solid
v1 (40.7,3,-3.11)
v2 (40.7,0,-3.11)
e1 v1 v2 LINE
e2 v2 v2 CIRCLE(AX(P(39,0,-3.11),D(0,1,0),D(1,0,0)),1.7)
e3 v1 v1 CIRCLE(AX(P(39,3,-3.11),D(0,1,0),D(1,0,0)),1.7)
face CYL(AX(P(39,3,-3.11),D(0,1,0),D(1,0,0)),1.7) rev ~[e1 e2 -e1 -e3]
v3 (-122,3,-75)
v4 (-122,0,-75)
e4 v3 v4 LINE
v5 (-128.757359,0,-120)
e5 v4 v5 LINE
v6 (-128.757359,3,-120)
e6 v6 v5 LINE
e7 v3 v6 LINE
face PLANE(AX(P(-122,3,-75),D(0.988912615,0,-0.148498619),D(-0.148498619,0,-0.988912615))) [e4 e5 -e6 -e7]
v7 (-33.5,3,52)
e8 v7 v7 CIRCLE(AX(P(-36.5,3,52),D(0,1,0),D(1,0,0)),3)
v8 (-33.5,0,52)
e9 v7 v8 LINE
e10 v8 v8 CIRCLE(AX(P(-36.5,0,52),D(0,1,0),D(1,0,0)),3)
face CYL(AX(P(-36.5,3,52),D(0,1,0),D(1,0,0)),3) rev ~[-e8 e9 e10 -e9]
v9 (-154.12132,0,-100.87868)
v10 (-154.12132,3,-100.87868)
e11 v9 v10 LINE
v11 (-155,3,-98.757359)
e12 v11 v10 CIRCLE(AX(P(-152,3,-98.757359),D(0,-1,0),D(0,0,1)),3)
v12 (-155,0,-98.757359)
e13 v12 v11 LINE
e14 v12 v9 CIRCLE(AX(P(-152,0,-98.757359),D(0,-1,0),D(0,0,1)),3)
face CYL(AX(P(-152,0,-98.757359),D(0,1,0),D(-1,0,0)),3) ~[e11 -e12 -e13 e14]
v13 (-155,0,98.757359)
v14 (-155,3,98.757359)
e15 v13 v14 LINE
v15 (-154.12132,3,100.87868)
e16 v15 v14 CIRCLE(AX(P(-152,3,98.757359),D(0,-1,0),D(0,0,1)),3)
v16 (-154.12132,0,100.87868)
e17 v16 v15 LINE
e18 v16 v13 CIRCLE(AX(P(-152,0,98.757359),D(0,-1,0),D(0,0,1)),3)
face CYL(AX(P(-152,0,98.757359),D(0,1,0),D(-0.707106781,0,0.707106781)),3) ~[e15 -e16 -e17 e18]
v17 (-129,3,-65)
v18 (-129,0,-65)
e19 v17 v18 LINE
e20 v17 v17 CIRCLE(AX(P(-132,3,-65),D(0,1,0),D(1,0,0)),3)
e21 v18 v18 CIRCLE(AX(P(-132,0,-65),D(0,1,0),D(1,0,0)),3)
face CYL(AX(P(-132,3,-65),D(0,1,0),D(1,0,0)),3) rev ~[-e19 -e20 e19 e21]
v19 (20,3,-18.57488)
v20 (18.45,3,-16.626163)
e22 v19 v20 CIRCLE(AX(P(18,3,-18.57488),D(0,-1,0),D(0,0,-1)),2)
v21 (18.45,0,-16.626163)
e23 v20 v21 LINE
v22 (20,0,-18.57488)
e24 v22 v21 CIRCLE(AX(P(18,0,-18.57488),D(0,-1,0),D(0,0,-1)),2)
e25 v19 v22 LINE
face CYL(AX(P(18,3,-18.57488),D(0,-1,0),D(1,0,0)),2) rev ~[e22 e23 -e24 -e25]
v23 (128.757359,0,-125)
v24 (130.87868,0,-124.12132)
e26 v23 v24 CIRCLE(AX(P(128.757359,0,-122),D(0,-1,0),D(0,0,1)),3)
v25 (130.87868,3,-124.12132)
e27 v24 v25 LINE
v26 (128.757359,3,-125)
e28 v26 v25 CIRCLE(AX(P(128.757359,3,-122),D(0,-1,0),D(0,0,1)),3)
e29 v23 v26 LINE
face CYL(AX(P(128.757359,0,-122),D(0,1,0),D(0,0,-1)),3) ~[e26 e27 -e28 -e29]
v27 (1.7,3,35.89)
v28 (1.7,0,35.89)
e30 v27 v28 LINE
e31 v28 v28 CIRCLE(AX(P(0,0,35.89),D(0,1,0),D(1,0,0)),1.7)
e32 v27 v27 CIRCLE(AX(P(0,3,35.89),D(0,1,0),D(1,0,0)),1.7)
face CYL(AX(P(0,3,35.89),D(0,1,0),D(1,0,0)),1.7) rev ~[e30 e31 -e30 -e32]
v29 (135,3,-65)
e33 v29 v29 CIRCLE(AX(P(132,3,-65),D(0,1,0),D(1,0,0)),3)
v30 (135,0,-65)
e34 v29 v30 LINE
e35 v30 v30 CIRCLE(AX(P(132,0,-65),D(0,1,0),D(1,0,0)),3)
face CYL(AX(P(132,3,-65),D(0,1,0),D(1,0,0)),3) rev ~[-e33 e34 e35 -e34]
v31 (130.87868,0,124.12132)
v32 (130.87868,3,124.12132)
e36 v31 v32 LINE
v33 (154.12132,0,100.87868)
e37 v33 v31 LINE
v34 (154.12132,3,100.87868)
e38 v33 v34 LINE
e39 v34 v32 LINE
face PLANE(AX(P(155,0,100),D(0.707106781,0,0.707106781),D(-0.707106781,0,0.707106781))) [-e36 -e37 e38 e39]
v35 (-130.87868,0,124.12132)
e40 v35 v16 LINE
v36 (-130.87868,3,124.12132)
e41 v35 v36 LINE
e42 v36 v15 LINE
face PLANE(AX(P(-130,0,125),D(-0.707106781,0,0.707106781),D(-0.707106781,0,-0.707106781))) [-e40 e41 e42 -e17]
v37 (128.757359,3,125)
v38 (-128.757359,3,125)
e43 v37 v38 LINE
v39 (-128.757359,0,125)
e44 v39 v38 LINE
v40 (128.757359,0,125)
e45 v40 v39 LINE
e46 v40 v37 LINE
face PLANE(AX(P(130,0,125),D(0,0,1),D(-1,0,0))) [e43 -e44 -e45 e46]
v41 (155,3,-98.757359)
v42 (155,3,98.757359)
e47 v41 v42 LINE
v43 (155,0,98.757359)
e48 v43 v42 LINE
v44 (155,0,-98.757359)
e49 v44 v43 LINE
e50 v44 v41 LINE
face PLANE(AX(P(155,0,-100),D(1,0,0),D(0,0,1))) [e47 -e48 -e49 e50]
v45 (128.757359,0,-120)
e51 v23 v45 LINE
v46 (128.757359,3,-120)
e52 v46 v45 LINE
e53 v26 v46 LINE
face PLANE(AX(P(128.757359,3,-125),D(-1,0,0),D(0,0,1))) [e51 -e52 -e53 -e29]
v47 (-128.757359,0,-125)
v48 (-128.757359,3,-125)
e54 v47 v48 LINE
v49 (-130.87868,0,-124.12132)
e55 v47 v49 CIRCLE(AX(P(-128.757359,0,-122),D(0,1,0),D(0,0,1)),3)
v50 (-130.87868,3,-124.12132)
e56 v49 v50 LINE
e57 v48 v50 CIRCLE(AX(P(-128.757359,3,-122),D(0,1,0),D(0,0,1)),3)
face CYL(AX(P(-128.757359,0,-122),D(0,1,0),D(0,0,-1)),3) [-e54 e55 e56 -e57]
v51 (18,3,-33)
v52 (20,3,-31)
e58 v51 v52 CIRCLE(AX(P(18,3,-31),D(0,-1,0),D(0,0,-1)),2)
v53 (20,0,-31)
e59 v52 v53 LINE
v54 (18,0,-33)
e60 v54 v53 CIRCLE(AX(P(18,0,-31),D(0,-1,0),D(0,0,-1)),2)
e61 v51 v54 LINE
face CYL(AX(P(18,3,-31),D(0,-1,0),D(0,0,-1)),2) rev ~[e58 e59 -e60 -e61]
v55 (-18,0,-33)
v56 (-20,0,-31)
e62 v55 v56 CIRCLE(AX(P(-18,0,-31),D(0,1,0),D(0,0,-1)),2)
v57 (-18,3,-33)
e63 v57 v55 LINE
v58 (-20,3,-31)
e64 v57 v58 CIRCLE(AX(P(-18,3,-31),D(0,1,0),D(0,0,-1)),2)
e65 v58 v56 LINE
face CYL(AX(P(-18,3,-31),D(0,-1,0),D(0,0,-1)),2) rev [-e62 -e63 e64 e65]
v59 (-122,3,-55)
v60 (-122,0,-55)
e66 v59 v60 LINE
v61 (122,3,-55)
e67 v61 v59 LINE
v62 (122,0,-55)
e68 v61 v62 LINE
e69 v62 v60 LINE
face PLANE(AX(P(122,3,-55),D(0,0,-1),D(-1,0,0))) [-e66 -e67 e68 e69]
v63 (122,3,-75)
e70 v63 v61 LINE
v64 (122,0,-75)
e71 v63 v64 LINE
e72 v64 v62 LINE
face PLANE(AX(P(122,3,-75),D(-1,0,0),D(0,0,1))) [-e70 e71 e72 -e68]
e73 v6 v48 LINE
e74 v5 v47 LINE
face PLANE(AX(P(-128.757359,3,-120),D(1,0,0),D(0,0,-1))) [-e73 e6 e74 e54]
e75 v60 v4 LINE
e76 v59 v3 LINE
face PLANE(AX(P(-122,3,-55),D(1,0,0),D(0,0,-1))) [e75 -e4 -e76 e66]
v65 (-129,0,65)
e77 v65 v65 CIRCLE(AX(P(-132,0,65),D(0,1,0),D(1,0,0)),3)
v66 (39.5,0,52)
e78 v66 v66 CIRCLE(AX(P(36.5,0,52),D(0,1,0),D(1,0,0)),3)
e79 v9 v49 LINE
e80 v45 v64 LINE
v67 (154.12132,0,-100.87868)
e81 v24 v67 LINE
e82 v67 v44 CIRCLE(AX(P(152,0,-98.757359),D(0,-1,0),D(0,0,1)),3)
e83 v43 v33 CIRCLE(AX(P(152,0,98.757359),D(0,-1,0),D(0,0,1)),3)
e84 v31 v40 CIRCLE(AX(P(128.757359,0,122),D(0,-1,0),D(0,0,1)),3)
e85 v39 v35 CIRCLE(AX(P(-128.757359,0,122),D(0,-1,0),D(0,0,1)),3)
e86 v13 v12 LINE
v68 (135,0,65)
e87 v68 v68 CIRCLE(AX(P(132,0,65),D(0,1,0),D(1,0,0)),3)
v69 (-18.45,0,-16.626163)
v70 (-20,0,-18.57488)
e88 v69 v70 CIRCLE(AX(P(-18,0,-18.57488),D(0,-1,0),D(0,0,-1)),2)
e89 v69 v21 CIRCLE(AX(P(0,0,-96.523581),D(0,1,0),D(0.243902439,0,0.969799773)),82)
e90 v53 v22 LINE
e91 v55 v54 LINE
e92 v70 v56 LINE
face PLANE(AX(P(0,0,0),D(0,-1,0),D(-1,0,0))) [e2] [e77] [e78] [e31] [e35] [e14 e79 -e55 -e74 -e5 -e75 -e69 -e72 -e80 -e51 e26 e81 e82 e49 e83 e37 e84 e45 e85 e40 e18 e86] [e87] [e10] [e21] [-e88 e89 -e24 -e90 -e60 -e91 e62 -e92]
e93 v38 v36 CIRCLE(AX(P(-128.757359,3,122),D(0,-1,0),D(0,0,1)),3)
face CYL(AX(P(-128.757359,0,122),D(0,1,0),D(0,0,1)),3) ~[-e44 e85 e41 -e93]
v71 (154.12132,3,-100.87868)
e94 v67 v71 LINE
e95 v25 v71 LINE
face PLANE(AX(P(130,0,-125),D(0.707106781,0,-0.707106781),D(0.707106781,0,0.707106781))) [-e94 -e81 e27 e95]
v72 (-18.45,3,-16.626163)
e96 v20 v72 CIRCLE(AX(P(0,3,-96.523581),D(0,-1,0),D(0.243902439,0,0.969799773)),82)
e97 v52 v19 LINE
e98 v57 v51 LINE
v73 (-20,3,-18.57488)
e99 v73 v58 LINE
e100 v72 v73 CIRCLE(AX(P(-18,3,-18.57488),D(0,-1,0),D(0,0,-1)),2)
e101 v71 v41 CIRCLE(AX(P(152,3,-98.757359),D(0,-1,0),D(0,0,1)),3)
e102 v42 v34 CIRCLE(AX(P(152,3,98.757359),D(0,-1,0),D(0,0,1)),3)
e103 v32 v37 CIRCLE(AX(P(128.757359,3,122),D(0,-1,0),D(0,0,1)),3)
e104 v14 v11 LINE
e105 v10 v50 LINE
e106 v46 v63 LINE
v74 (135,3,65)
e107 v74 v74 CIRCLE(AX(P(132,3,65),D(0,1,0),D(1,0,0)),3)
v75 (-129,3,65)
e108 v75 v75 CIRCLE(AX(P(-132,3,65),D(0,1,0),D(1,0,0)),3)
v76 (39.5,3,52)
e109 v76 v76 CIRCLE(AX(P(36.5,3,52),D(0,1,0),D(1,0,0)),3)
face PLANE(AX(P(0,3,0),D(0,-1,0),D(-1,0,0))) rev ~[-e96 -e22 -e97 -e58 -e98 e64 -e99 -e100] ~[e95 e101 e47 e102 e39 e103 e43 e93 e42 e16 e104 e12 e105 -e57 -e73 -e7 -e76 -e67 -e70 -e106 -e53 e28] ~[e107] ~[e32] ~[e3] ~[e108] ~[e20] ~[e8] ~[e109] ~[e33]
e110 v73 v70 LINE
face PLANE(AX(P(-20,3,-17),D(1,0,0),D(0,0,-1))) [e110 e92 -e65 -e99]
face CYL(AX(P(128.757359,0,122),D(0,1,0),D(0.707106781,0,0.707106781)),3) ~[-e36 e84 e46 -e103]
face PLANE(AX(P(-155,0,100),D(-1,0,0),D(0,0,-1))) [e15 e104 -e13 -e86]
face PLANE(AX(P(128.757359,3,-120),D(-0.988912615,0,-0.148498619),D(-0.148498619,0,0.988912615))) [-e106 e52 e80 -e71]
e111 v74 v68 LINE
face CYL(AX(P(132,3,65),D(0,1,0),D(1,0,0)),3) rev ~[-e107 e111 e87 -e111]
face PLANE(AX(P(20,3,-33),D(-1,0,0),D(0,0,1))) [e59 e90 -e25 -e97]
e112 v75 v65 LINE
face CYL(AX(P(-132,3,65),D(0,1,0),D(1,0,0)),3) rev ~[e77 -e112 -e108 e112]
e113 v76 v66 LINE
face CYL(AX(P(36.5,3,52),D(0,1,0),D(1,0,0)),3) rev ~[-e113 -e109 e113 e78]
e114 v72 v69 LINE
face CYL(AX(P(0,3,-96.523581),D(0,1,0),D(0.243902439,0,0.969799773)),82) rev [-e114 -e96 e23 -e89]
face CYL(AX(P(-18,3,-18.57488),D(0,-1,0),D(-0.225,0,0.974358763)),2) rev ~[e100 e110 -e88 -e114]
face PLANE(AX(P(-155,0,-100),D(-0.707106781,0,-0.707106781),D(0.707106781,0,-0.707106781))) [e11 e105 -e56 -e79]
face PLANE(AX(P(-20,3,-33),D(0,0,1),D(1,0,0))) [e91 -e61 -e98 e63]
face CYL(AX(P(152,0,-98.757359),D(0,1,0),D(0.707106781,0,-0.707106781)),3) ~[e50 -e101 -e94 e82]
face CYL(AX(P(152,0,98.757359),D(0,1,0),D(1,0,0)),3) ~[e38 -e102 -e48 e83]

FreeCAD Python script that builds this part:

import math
import FreeCAD as App
import Part
import Sketcher
from FreeCAD import Vector
Q = App.Units.Quantity


def edges_at(feature, points):
    """Names of the edges that pass closest to the given points."""
    edges = feature.Shape.Edges
    near = lambda p: min(range(len(edges)), key=lambda i: edges[i].distToShape(Part.Vertex(*p))[0])
    return sorted({f"Edge{near(p) + 1}" for p in points})


def add_polygon(sketch, points):
    """Adds a closed chain of lines whose ends are joined by coincident constraints."""
    first, n = sketch.GeometryCount, len(points)
    for a, b in zip(points, points[1:] + points[:1]):
        sketch.addGeometry(Part.LineSegment(App.Vector(*a, 0), App.Vector(*b, 0)), False)
    for i in range(n):
        sketch.addConstraint(Sketcher.Constraint("Coincident", first + i, 2, first + (i + 1) % n, 1))

doc = App.newDocument("Part")
params = doc.addObject("Spreadsheet::Sheet", "Params")
for row, (alias, value) in enumerate([
    ("sketch1_width", "260 mm"),
    ("sketch1_height", "200 mm"),
    ("pad1_length", "3 mm"),
    ("fillet_radius", "3 mm"),
    ("sketch2_diameter", "6 mm"),
    ("sketch3_diameter", "6 mm"),
    ("sketch4_diameter", "3.4 mm"),
    ("sketch5_diameter", "3.4 mm"),
    ("sketch6_radius", "82 mm"),
    ("sketch6_width", "40 mm"),
    ("sketch6_height", "16 mm"),
    ("fillet2_radius", "2 mm"),
    ("sketch7_width", "244 mm"),
    ("sketch7_height", "20 mm"),
    ("sketch7_height2", "5 mm"),
], start=1):
    params.set(f"A{row}", alias)
    params.set(f"B{row}", "=" + value)
    params.setAlias(f"B{row}", alias)

body = doc.addObject("PartDesign::Body", "Body")

# Sketch on XZ plane
sketch1 = body.newObject("Sketcher::SketchObject", "Sketch")
sketch1.AttachmentSupport = (doc.getObject("XZ_Plane"), [""])
sketch1.MapMode = "FlatFace"
add_polygon(sketch1, [(130, -125), (-130, -125), (-155, -100), (-155, 100), (-130, 125), (130, 125), (155, 100), (155, -100)])  # lines 0-7
sketch1.addConstraint([
    Sketcher.Constraint("Horizontal", 0),
    Sketcher.Constraint("Vertical", 2),
    Sketcher.Constraint("Horizontal", 4),
    Sketcher.Constraint("Vertical", 6),
    Sketcher.Constraint("Symmetric", 0, 2, 4, 2, -1, 1),
    Sketcher.Constraint("Symmetric", 1, 2, 5, 2, -1, 1),
    Sketcher.Constraint("Perpendicular", 1, 3),
    Sketcher.Constraint("Perpendicular", 5, 7),
    Sketcher.Constraint("Horizontal", 2, 2, 5, 2),
    Sketcher.Constraint("Horizontal", 1, 2, 6, 2),
    Sketcher.Constraint("Vertical", 0, 2, 3, 2),
    Sketcher.Constraint("DistanceX", 0, 2, 0, 1, Q("260 mm")),
    Sketcher.Constraint("DistanceY", 2, 1, 2, 2, Q("200 mm")),
    Sketcher.Constraint("DistanceY", 0, 2, -1, 1, Q("125 mm")),
])
sketch1.setExpression("Constraints[19]", "Params.sketch1_width")
sketch1.setExpression("Constraints[20]", "Params.sketch1_height")
pad1 = body.newObject("PartDesign::Pad", "Pad")
pad1.Profile = sketch1
pad1.setExpression("Length", "Params.pad1_length")
pad1.Reversed = True
doc.recompute()

fillet = body.newObject("PartDesign::Fillet", "Fillet")
fillet.Base = (pad1, edges_at(pad1, [
    (155, 1.5, -100),
    (155, 1.5, 100),
    (130, 1.5, 125),
    (-130, 1.5, 125),
    (-155, 1.5, 100),
    (-155, 1.5, -100),
    (-130, 1.5, -125),
    (130, 1.5, -125),
]))
fillet.setExpression("Radius", "Params.fillet_radius")

# Sketch on XZ plane
sketch2 = body.newObject("Sketcher::SketchObject", "Sketch001")
sketch2.AttachmentSupport = (doc.getObject("XZ_Plane"), [""])
sketch2.MapMode = "FlatFace"
sketch2.AttachmentOffset = App.Placement(Vector(0, 0, -3), App.Rotation())
sketch2.addGeometry([
    Part.Circle(Vector(-132, -65, 0), Vector(0, 0, 1), 3),
    Part.Circle(Vector(-132, 65, 0), Vector(0, 0, 1), 3),
    Part.Circle(Vector(132, 65, 0), Vector(0, 0, 1), 3),
    Part.Circle(Vector(132, -65, 0), Vector(0, 0, 1), 3),
], False)
sketch2.addConstraint([
    Sketcher.Constraint("Equal", 0, 1),
    Sketcher.Constraint("Equal", 1, 2),
    Sketcher.Constraint("Equal", 2, 3),
    Sketcher.Constraint("Symmetric", 0, 3, 2, 3, -1, 1),
    Sketcher.Constraint("Symmetric", 1, 3, 3, 3, -1, 1),
    Sketcher.Constraint("Symmetric", 1, 3, 2, 3, -2),
    Sketcher.Constraint("Diameter", 0, Q("6 mm")),
    Sketcher.Constraint("DistanceX", 0, 3, -1, 1, Q("132 mm")),
    Sketcher.Constraint("DistanceY", 0, 3, -1, 1, Q("65 mm")),
])
sketch2.setExpression("Constraints[6]", "Params.sketch2_diameter")
pocket1 = body.newObject("PartDesign::Pocket", "Pocket")
pocket1.Profile = sketch2
pocket1.Type = "ThroughAll"
pocket1.Reversed = True

# Sketch on XZ plane
sketch3 = body.newObject("Sketcher::SketchObject", "Sketch002")
sketch3.AttachmentSupport = (doc.getObject("XZ_Plane"), [""])
sketch3.MapMode = "FlatFace"
sketch3.AttachmentOffset = App.Placement(Vector(0, 0, -3), App.Rotation())
sketch3.addGeometry([
    Part.Circle(Vector(-36.5, 52, 0), Vector(0, 0, 1), 3),
    Part.Circle(Vector(36.5, 52, 0), Vector(0, 0, 1), 3),
], False)
sketch3.addConstraint([
    Sketcher.Constraint("Equal", 0, 1),
    Sketcher.Constraint("Symmetric", 0, 3, 1, 3, -2),
    Sketcher.Constraint("Diameter", 0, Q("6 mm")),
    Sketcher.Constraint("DistanceY", -1, 1, 0, 3, Q("52 mm")),
    Sketcher.Constraint("DistanceX", 0, 3, 1, 3, Q("73 mm")),
])
sketch3.setExpression("Constraints[2]", "Params.sketch3_diameter")
pocket2 = body.newObject("PartDesign::Pocket", "Pocket001")
pocket2.Profile = sketch3
pocket2.Type = "ThroughAll"
pocket2.Reversed = True

# Sketch on XZ plane
sketch4 = body.newObject("Sketcher::SketchObject", "Sketch003")
sketch4.AttachmentSupport = (doc.getObject("XZ_Plane"), [""])
sketch4.MapMode = "FlatFace"
sketch4.AttachmentOffset = App.Placement(Vector(0, 0, -3), App.Rotation())
sketch4.addGeometry(Part.Circle(Vector(0, 35.9, 0), Vector(0, 0, 1), 1.7), False)
sketch4.addConstraint([
    Sketcher.Constraint("PointOnObject", 0, 3, -2),
    Sketcher.Constraint("Diameter", 0, Q("3.4 mm")),
    Sketcher.Constraint("DistanceY", -1, 1, 0, 3, Q("35.89 mm")),
])
sketch4.setExpression("Constraints[1]", "Params.sketch4_diameter")
pocket3 = body.newObject("PartDesign::Pocket", "Pocket002")
pocket3.Profile = sketch4
pocket3.Type = "UpToFirst"
pocket3.Reversed = True

# Sketch on XZ plane
sketch5 = body.newObject("Sketcher::SketchObject", "Sketch004")
sketch5.AttachmentSupport = (doc.getObject("XZ_Plane"), [""])
sketch5.MapMode = "FlatFace"
sketch5.AttachmentOffset = App.Placement(Vector(0, 0, -3), App.Rotation())
sketch5.addGeometry(Part.Circle(Vector(39, -3.1, 0), Vector(0, 0, 1), 1.7), False)
sketch5.addConstraint([
    Sketcher.Constraint("Diameter", 0, Q("3.4 mm")),
    Sketcher.Constraint("DistanceX", -1, 1, 0, 3, Q("39 mm")),
    Sketcher.Constraint("DistanceY", 0, 3, -1, 1, Q("3.11 mm")),
])
sketch5.setExpression("Constraints[0]", "Params.sketch5_diameter")
pocket4 = body.newObject("PartDesign::Pocket", "Pocket003")
pocket4.Profile = sketch5
pocket4.Type = "UpToFirst"
pocket4.Reversed = True

# Sketch on XZ plane
sketch6 = body.newObject("Sketcher::SketchObject", "Sketch005")
sketch6.AttachmentSupport = (doc.getObject("XZ_Plane"), [""])
sketch6.MapMode = "FlatFace"
sketch6.AttachmentOffset = App.Placement(Vector(0, 0, -3), App.Rotation())
sketch6.addGeometry([
    Part.LineSegment(Vector(20, -33, 0), Vector(-20, -33, 0)),
    Part.LineSegment(Vector(-20, -33, 0), Vector(-20, -17, 0)),
    Part.ArcOfCircle(Part.Circle(Vector(0, -97, 0), Vector(0, 0, 1), 82), math.radians(76), math.radians(104)),
    Part.LineSegment(Vector(20, -17, 0), Vector(20, -33, 0)),
], False)
sketch6.addConstraint([
    Sketcher.Constraint("Coincident", 0, 2, 1, 1),
    Sketcher.Constraint("Coincident", 1, 2, 2, 2),
    Sketcher.Constraint("Coincident", 2, 1, 3, 1),
    Sketcher.Constraint("Coincident", 3, 2, 0, 1),
    Sketcher.Constraint("Horizontal", 0),
    Sketcher.Constraint("Vertical", 1),
    Sketcher.Constraint("Vertical", 3),
    Sketcher.Constraint("Symmetric", 1, 2, 2, 1, -2),
    Sketcher.Constraint("Radius", 2, Q("82 mm")),
    Sketcher.Constraint("DistanceX", 0, 2, 0, 1, Q("40 mm")),
    Sketcher.Constraint("DistanceY", 1, 1, 1, 2, Q("16 mm")),
    Sketcher.Constraint("DistanceY", 0, 2, -1, 1, Q("33 mm")),
])
sketch6.setExpression("Constraints[8]", "Params.sketch6_radius")
sketch6.setExpression("Constraints[9]", "Params.sketch6_width")
sketch6.setExpression("Constraints[10]", "Params.sketch6_height")
pocket5 = body.newObject("PartDesign::Pocket", "Pocket004")
pocket5.Profile = sketch6
pocket5.Type = "UpToFirst"
pocket5.Reversed = True
doc.recompute()

fillet2 = body.newObject("PartDesign::Fillet", "Fillet001")
fillet2.Base = (pocket5, edges_at(pocket5, [
    (-20, 1.5, -17),
    (-20, 1.5, -33),
    (20, 1.5, -33),
    (20, 1.5, -17),
]))
fillet2.setExpression("Radius", "Params.fillet2_radius")

# Sketch on XZ plane
sketch7 = body.newObject("Sketcher::SketchObject", "Sketch006")
sketch7.AttachmentSupport = (doc.getObject("XZ_Plane"), [""])
sketch7.MapMode = "FlatFace"
sketch7.AttachmentOffset = App.Placement(Vector(0, 0, -3), App.Rotation())
add_polygon(sketch7, [(-122, -55), (122, -55), (122, -75), (129, -120), (129, -125), (-129, -125), (-129, -120), (-122, -75)])  # lines 0-7
sketch7.addConstraint([
    Sketcher.Constraint("Horizontal", 0),
    Sketcher.Constraint("Vertical", 1),
    Sketcher.Constraint("Vertical", 3),
    Sketcher.Constraint("Horizontal", 4),
    Sketcher.Constraint("Vertical", 5),
    Sketcher.Constraint("Vertical", 7),
    Sketcher.Constraint("Symmetric", 2, 2, 5, 2, -2),
    Sketcher.Constraint("Symmetric", 1, 2, 6, 2, -2),
    Sketcher.Constraint("DistanceX", 0, 1, 0, 2, Q("244 mm")),
    Sketcher.Constraint("DistanceY", 1, 2, 1, 1, Q("20 mm")),
    Sketcher.Constraint("DistanceY", 3, 2, 3, 1, Q("5 mm")),
    Sketcher.Constraint("DistanceY", 0, 2, -1, 1, Q("55 mm")),
    Sketcher.Constraint("DistanceY", 2, 2, -1, 1, Q("120 mm")),
    Sketcher.Constraint("DistanceX", 4, 2, 4, 1, Q("257.514719 mm")),
])
sketch7.setExpression("Constraints[16]", "Params.sketch7_width")
sketch7.setExpression("Constraints[17]", "Params.sketch7_height")
sketch7.setExpression("Constraints[18]", "Params.sketch7_height2")
pocket6 = body.newObject("PartDesign::Pocket", "Pocket005")
pocket6.Profile = sketch7
pocket6.Type = "UpToFirst"
pocket6.Reversed = True

doc.recompute()
